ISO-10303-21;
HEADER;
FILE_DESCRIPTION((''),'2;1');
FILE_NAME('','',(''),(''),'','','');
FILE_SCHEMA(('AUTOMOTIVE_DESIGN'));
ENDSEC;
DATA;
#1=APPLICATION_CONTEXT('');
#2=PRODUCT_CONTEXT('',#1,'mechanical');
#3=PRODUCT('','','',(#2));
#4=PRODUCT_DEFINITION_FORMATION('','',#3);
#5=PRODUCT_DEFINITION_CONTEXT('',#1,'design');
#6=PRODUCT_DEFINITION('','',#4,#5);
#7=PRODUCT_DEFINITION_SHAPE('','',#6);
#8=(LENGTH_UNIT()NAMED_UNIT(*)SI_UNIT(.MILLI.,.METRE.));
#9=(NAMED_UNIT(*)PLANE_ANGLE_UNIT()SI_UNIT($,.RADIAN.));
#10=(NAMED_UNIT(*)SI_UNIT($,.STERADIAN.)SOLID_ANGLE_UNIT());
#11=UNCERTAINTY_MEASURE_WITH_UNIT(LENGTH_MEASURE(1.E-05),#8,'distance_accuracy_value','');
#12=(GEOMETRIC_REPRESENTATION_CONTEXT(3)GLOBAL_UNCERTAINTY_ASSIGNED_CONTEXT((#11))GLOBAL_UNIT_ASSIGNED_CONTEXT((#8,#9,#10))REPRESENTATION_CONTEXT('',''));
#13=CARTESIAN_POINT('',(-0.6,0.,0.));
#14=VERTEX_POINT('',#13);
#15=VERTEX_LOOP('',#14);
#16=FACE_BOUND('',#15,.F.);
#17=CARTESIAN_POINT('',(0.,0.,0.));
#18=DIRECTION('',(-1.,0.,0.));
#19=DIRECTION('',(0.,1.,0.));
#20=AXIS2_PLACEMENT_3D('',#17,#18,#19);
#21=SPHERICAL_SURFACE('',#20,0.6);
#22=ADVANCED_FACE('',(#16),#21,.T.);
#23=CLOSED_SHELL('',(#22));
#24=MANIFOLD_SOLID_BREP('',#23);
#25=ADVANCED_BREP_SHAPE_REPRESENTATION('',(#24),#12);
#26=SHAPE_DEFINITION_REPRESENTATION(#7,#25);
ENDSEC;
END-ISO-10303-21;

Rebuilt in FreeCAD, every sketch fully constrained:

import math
import FreeCAD as App
import Part
import Sketcher
from FreeCAD import Vector
Q = App.Units.Quantity

doc = App.newDocument("Part")
body = doc.addObject("PartDesign::Body", "Body")

sketch1 = body.newObject("Sketcher::SketchObject", "Sketch")
sketch1.AttachmentSupport = (doc.getObject("XY_Plane"), [""])
sketch1.MapMode = "FlatFace"
sketch1.addGeometry([
    Part.LineSegment(Vector(-0.6, 0, 0), Vector(0.6, 0, 0)),
    Part.ArcOfCircle(Part.Circle(Vector(0, 0, 0), Vector(0, 0, 1), 0.6), math.radians(0), math.radians(180)),
], False)
sketch1.addConstraint([
    Sketcher.Constraint("Coincident", 0, 1, 1, 2),
    Sketcher.Constraint("Coincident", 1, 1, 0, 2),
    Sketcher.Constraint("Horizontal", 0),
    Sketcher.Constraint("Coincident", 1, 3, -1, 1),
    Sketcher.Constraint("PointOnObject", 0, 1, -1),
    Sketcher.Constraint("Radius", 1, Q("0.6 mm")),
])
revolution = body.newObject("PartDesign::Revolution", "Revolution")
revolution.Profile = sketch1
revolution.ReferenceAxis = (sketch1, ["H_Axis"])
revolution.Angle = 360

doc.recompute()
